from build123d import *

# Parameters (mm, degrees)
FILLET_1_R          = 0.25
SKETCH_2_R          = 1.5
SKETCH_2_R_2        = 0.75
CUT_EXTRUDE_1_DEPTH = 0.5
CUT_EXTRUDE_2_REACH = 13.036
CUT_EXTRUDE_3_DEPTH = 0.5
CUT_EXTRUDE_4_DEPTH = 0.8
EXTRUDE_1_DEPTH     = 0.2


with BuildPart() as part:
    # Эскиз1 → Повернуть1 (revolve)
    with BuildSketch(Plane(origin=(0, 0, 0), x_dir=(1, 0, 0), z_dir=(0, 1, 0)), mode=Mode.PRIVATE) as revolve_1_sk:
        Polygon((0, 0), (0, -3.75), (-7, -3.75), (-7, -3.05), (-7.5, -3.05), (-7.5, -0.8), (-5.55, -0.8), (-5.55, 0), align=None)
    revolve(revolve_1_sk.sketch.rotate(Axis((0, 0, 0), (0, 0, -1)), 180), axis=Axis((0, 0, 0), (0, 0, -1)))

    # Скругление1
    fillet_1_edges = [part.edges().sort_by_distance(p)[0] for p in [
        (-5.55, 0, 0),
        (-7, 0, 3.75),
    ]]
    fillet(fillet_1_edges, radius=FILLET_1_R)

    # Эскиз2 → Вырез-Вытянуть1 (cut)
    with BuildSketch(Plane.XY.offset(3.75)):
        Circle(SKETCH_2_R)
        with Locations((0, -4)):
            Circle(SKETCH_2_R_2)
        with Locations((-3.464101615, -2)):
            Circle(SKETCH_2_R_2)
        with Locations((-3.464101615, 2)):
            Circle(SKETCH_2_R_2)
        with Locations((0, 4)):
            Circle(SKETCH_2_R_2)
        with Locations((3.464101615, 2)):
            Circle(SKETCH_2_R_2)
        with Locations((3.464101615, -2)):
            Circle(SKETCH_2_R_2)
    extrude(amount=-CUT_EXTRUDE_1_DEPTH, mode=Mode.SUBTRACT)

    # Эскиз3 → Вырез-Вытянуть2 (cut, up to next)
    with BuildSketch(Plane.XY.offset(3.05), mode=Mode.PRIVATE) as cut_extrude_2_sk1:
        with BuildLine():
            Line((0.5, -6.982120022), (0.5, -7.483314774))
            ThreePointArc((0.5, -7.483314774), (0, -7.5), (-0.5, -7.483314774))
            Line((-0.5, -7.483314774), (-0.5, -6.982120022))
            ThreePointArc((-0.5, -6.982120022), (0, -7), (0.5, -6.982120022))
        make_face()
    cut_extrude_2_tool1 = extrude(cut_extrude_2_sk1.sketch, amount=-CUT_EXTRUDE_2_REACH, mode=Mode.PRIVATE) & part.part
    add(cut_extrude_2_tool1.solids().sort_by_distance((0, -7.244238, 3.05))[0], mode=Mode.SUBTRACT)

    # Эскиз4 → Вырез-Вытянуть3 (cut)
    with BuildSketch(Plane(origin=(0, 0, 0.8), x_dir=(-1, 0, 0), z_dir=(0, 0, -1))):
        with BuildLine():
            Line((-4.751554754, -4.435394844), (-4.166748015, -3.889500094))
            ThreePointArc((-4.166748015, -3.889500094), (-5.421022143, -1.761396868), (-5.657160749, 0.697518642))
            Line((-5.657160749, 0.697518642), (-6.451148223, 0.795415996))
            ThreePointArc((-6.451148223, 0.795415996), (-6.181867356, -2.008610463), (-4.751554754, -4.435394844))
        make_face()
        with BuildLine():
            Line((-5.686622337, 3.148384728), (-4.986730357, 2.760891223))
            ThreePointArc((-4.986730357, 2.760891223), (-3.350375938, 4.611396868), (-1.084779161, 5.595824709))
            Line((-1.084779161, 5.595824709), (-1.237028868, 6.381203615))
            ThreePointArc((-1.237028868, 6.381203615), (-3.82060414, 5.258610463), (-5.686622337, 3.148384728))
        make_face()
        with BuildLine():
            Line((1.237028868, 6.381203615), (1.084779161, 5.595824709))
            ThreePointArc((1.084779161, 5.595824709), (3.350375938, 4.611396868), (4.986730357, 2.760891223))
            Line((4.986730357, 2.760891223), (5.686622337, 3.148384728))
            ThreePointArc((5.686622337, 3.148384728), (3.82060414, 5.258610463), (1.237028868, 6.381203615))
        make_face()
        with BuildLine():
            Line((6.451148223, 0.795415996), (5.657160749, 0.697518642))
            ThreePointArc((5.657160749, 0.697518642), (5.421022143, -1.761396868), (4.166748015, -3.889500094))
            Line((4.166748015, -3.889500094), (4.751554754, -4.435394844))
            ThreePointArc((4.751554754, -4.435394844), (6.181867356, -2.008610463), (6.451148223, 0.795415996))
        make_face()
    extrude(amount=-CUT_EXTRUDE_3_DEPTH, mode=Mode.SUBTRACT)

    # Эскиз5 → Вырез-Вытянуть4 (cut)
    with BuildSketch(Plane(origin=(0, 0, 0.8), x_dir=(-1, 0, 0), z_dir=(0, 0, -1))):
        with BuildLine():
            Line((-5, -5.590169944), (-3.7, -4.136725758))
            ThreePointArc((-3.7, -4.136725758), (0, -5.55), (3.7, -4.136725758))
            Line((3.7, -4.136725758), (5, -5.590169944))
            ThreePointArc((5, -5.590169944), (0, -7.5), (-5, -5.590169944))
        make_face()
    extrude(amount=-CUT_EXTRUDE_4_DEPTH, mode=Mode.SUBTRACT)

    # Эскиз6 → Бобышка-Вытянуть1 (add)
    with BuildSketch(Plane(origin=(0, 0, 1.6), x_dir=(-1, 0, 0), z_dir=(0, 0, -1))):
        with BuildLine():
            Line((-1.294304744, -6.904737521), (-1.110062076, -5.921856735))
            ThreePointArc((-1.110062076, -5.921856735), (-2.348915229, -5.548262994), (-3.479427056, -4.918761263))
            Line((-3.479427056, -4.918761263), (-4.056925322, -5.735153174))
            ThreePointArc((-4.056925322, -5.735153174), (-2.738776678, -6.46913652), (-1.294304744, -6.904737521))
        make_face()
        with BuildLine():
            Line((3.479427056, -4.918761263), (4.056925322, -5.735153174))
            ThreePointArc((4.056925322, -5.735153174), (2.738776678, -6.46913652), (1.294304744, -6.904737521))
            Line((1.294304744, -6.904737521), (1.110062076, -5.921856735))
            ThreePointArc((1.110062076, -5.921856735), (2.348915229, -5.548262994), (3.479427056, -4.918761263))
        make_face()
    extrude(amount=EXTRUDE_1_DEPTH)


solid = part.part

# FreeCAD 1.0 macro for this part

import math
import FreeCAD as App
import Part
import Sketcher
Q = App.Units.Quantity


def edges_at(feature, points):
    """Names of the edges that pass closest to the given points."""
    edges = feature.Shape.Edges
    near = lambda p: min(range(len(edges)), key=lambda i: edges[i].distToShape(Part.Vertex(*p))[0])
    return sorted({f"Edge{near(p) + 1}" for p in points})


def add_polygon(sketch, points):
    """Adds a closed chain of lines whose ends are joined by coincident constraints."""
    first, n = sketch.GeometryCount, len(points)
    for a, b in zip(points, points[1:] + points[:1]):
        sketch.addGeometry(Part.LineSegment(App.Vector(*a, 0), App.Vector(*b, 0)), False)
    for i in range(n):
        sketch.addConstraint(Sketcher.Constraint("Coincident", first + i, 2, first + (i + 1) % n, 1))

doc = App.newDocument("Part")
params = doc.addObject("Spreadsheet::Sheet", "Params")
for row, (alias, value) in enumerate([
    ("sketch1_width", "7 mm"),
    ("sketch1_width2", "0.5 mm"),
    ("sketch1_height", "0.8 mm"),
    ("sketch1_height2", "0.7 mm"),
    ("sketch1_width3", "5.55 mm"),
    ("revolution_angle", "360 deg"),
    ("fillet_radius", "0.25 mm"),
    ("sketch2_diameter", "3 mm"),
    ("sketch2_diameter2", "1.5 mm"),
    ("pocket1_length", "0.5 mm"),
    ("sketch3_radius", "7 mm"),
    ("sketch3_radius2", "7.5 mm"),
    ("sketch4_radius", "5.7 mm"),
    ("sketch4_radius2", "6.5 mm"),
    ("pocket3_length", "0.5 mm"),
    ("sketch5_radius", "7.5 mm"),
    ("sketch5_radius2", "5.55 mm"),
    ("pocket4_length", "0.8 mm"),
    ("sketch6_length", "1 mm"),
    ("pad1_length", "0.2 mm"),
], start=1):
    params.set(f"A{row}", alias)
    params.set(f"B{row}", "=" + value)
    params.setAlias(f"B{row}", alias)

body = doc.addObject("PartDesign::Body", "Body")

sketch1 = doc.addObject("Sketcher::SketchObject", "Sketch")
body.addObject(sketch1)
sketch1.AttachmentSupport = (doc.XZ_Plane, [""])
sketch1.MapMode = "FlatFace"
add_polygon(sketch1, [(0, 3.8), (0, 0), (-5.5, 0), (-5.5, 0.8), (-7.5, 0.8), (-7.5, 3), (-7, 3), (-7, 3.8)])
sketch1.addConstraint(Sketcher.Constraint("Vertical", 0))
sketch1.addConstraint(Sketcher.Constraint("Horizontal", 1))
sketch1.addConstraint(Sketcher.Constraint("Vertical", 2))
sketch1.addConstraint(Sketcher.Constraint("Horizontal", 3))
sketch1.addConstraint(Sketcher.Constraint("Vertical", 4))
sketch1.addConstraint(Sketcher.Constraint("Horizontal", 5))
sketch1.addConstraint(Sketcher.Constraint("Vertical", 6))
sketch1.addConstraint(Sketcher.Constraint("Horizontal", 7))
sketch1.addConstraint(Sketcher.Constraint("Coincident", 0, 2, -1, 1))
sketch1.addConstraint(Sketcher.Constraint("DistanceX", 7, 1, 7, 2, Q("7 mm")))
sketch1.addConstraint(Sketcher.Constraint("DistanceX", 5, 1, 5, 2, Q("0.5 mm")))
sketch1.addConstraint(Sketcher.Constraint("DistanceY", 2, 1, 2, 2, Q("0.8 mm")))
sketch1.addConstraint(Sketcher.Constraint("DistanceY", 6, 1, 6, 2, Q("0.7 mm")))
sketch1.addConstraint(Sketcher.Constraint("DistanceX", 1, 2, 1, 1, Q("5.55 mm")))
sketch1.addConstraint(Sketcher.Constraint("DistanceY", 0, 2, 0, 1, Q("3.75 mm")))
sketch1.setExpression("Constraints[17]", "Params.sketch1_width")
sketch1.setExpression("Constraints[18]", "Params.sketch1_width2")
sketch1.setExpression("Constraints[19]", "Params.sketch1_height")
sketch1.setExpression("Constraints[20]", "Params.sketch1_height2")
sketch1.setExpression("Constraints[21]", "Params.sketch1_width3")
revolution = doc.addObject("PartDesign::Revolution", "Revolution")
body.addObject(revolution)
revolution.Profile = sketch1
revolution.ReferenceAxis = (sketch1, ["V_Axis"])
revolution.setExpression("Angle", "Params.revolution_angle")
doc.recompute()

fillet = doc.addObject("PartDesign::Fillet", "Fillet")
body.addObject(fillet)
fillet.Base = (revolution, edges_at(revolution, [(-5.55, 0, 0), (-7, 0, 3.75)]))
fillet.setExpression("Radius", "Params.fillet_radius")

sketch2 = doc.addObject("Sketcher::SketchObject", "Sketch001")
body.addObject(sketch2)
sketch2.AttachmentSupport = (doc.XY_Plane, [""])
sketch2.MapMode = "FlatFace"
sketch2.AttachmentOffset = App.Placement(App.Vector(0, 0, 3.75), App.Rotation())
sketch2.addGeometry(Part.Circle(App.Vector(0, 0, 0), App.Vector(0, 0, 1), 1.5), False)
sketch2.addGeometry(Part.Circle(App.Vector(0, -4, 0), App.Vector(0, 0, 1), 0.8), False)
sketch2.addGeometry(Part.Circle(App.Vector(-3.5, -2, 0), App.Vector(0, 0, 1), 0.8), False)
sketch2.addGeometry(Part.Circle(App.Vector(-3.5, 2, 0), App.Vector(0, 0, 1), 0.8), False)
sketch2.addGeometry(Part.Circle(App.Vector(0, 4, 0), App.Vector(0, 0, 1), 0.8), False)
sketch2.addGeometry(Part.Circle(App.Vector(3.5, 2, 0), App.Vector(0, 0, 1), 0.8), False)
sketch2.addGeometry(Part.Circle(App.Vector(3.5, -2, 0), App.Vector(0, 0, 1), 0.8), False)
sketch2.addConstraint(Sketcher.Constraint("Coincident", 0, 3, -1, 1))
sketch2.addConstraint(Sketcher.Constraint("Equal", 1, 2))
sketch2.addConstraint(Sketcher.Constraint("Equal", 2, 3))
sketch2.addConstraint(Sketcher.Constraint("Equal", 3, 4))
sketch2.addConstraint(Sketcher.Constraint("Equal", 4, 5))
sketch2.addConstraint(Sketcher.Constraint("Equal", 5, 6))
sketch2.addConstraint(Sketcher.Constraint("Symmetric", 1, 3, 4, 3, -1, 1))
sketch2.addConstraint(Sketcher.Constraint("Symmetric", 2, 3, 5, 3, -1, 1))
sketch2.addConstraint(Sketcher.Constraint("Symmetric", 3, 3, 6, 3, -1, 1))
sketch2.addConstraint(Sketcher.Constraint("Symmetric", 3, 3, 5, 3, -2))
sketch2.addConstraint(Sketcher.Constraint("PointOnObject", 1, 3, -2))
sketch2.addConstraint(Sketcher.Constraint("Diameter", 0, Q("3 mm")))
sketch2.addConstraint(Sketcher.Constraint("Diameter", 1, Q("1.5 mm")))
sketch2.addConstraint(Sketcher.Constraint("DistanceY", 1, 3, -1, 1, Q("4 mm")))
sketch2.addConstraint(Sketcher.Constraint("DistanceY", 2, 3, -1, 1, Q("2 mm")))
sketch2.addConstraint(Sketcher.Constraint("DistanceX", 2, 3, -1, 1, Q("3.464102 mm")))
sketch2.setExpression("Constraints[11]", "Params.sketch2_diameter")
sketch2.setExpression("Constraints[12]", "Params.sketch2_diameter2")
pocket1 = doc.addObject("PartDesign::Pocket", "Pocket")
body.addObject(pocket1)
pocket1.Profile = sketch2
pocket1.setExpression("Length", "Params.pocket1_length")

sketch3 = doc.addObject("Sketcher::SketchObject", "Sketch002")
body.addObject(sketch3)
sketch3.AttachmentSupport = (doc.XY_Plane, [""])
sketch3.MapMode = "FlatFace"
sketch3.AttachmentOffset = App.Placement(App.Vector(0, 0, 3.05), App.Rotation())
sketch3.addGeometry(Part.LineSegment(App.Vector(0.5, -7.5, 0), App.Vector(0.5, -7, 0)), False)
sketch3.addGeometry(Part.ArcOfCircle(Part.Circle(App.Vector(0, 0, 0), App.Vector(0, 0, 1), 7), math.radians(-94.1), math.radians(-85.9)), False)
sketch3.addGeometry(Part.LineSegment(App.Vector(-0.5, -7, 0), App.Vector(-0.5, -7.5, 0)), False)
sketch3.addGeometry(Part.ArcOfCircle(Part.Circle(App.Vector(0, 0, 0), App.Vector(0, 0, 1), 7.5), math.radians(-93.82), math.radians(-86.18)), False)
sketch3.addConstraint(Sketcher.Constraint("Coincident", 0, 2, 1, 2))
sketch3.addConstraint(Sketcher.Constraint("Coincident", 1, 1, 2, 1))
sketch3.addConstraint(Sketcher.Constraint("Coincident", 2, 2, 3, 1))
sketch3.addConstraint(Sketcher.Constraint("Coincident", 3, 2, 0, 1))
sketch3.addConstraint(Sketcher.Constraint("Vertical", 0))
sketch3.addConstraint(Sketcher.Constraint("Vertical", 2))
sketch3.addConstraint(Sketcher.Constraint("Coincident", 1, 3, -1, 1))
sketch3.addConstraint(Sketcher.Constraint("Coincident", 3, 3, -1, 1))
sketch3.addConstraint(Sketcher.Constraint("Horizontal", 0, 2, 1, 1))
sketch3.addConstraint(Sketcher.Constraint("Radius", 1, Q("7 mm")))
sketch3.addConstraint(Sketcher.Constraint("Radius", 3, Q("7.5 mm")))
sketch3.addConstraint(Sketcher.Constraint("DistanceX", 1, 1, 0, 2, Q("1 mm")))
sketch3.setExpression("Constraints[9]", "Params.sketch3_radius")
sketch3.setExpression("Constraints[10]", "Params.sketch3_radius2")
pocket2 = doc.addObject("PartDesign::Pocket", "Pocket001")
body.addObject(pocket2)
pocket2.Profile = sketch3
pocket2.Type = "UpToFirst"

sketch4 = doc.addObject("Sketcher::SketchObject", "Sketch003")
body.addObject(sketch4)
sketch4.AttachmentSupport = (doc.XY_Plane, [""])
sketch4.MapMode = "FlatFace"
sketch4.AttachmentOffset = App.Placement(App.Vector(0, 0, 0.8), App.Rotation())
sketch4.addGeometry(Part.LineSegment(App.Vector(4.8, -4.4, 0), App.Vector(4.2, -3.9, 0)), False)
sketch4.addGeometry(Part.ArcOfCircle(Part.Circle(App.Vector(0, 0, 0), App.Vector(0, 0, 1), 5.7), math.radians(-43), math.radians(7)), False)
sketch4.addGeometry(Part.LineSegment(App.Vector(5.7, 0.7, 0), App.Vector(6.5, 0.8, 0)), False)
sketch4.addGeometry(Part.ArcOfCircle(Part.Circle(App.Vector(0, 0, 0), App.Vector(0, 0, 1), 6.5), math.radians(-43), math.radians(7)), False)
sketch4.addGeometry(Part.LineSegment(App.Vector(5.7, 3.1, 0), App.Vector(5, 2.8, 0)), False)
sketch4.addGeometry(Part.ArcOfCircle(Part.Circle(App.Vector(0, 0, 0), App.Vector(0, 0, 1), 5.7), math.radians(29), math.radians(79)), False)
sketch4.addGeometry(Part.LineSegment(App.Vector(1.1, 5.6, 0), App.Vector(1.2, 6.4, 0)), False)
sketch4.addGeometry(Part.ArcOfCircle(Part.Circle(App.Vector(0, 0, 0), App.Vector(0, 0, 1), 6.5), math.radians(29), math.radians(79)), False)
sketch4.addGeometry(Part.LineSegment(App.Vector(-1.2, 6.4, 0), App.Vector(-1.1, 5.6, 0)), False)
sketch4.addGeometry(Part.ArcOfCircle(Part.Circle(App.Vector(0, 0, 0), App.Vector(0, 0, 1), 5.7), math.radians(101), math.radians(151)), False)
sketch4.addGeometry(Part.LineSegment(App.Vector(-5, 2.8, 0), App.Vector(-5.7, 3.1, 0)), False)
sketch4.addGeometry(Part.ArcOfCircle(Part.Circle(App.Vector(0, 0, 0), App.Vector(0, 0, 1), 6.5), math.radians(101), math.radians(151)), False)
sketch4.addGeometry(Part.LineSegment(App.Vector(-6.5, 0.8, 0), App.Vector(-5.7, 0.7, 0)), False)
sketch4.addGeometry(Part.ArcOfCircle(Part.Circle(App.Vector(0, 0, 0), App.Vector(0, 0, 1), 5.7), math.radians(173), math.radians(223)), False)
sketch4.addGeometry(Part.LineSegment(App.Vector(-4.2, -3.9, 0), App.Vector(-4.8, -4.4, 0)), False)
sketch4.addGeometry(Part.ArcOfCircle(Part.Circle(App.Vector(0, 0, 0), App.Vector(0, 0, 1), 6.5), math.radians(173), math.radians(223)), False)
sketch4.addConstraint(Sketcher.Constraint("Coincident", 0, 2, 1, 1))
sketch4.addConstraint(Sketcher.Constraint("Coincident", 1, 2, 2, 1))
sketch4.addConstraint(Sketcher.Constraint("Coincident", 2, 2, 3, 2))
sketch4.addConstraint(Sketcher.Constraint("Coincident", 3, 1, 0, 1))
sketch4.addConstraint(Sketcher.Constraint("Coincident", 4, 2, 5, 1))
sketch4.addConstraint(Sketcher.Constraint("Coincident", 5, 2, 6, 1))
sketch4.addConstraint(Sketcher.Constraint("Coincident", 6, 2, 7, 2))
sketch4.addConstraint(Sketcher.Constraint("Coincident", 7, 1, 4, 1))
sketch4.addConstraint(Sketcher.Constraint("Coincident", 8, 2, 9, 1))
sketch4.addConstraint(Sketcher.Constraint("Coincident", 9, 2, 10, 1))
sketch4.addConstraint(Sketcher.Constraint("Coincident", 10, 2, 11, 2))
sketch4.addConstraint(Sketcher.Constraint("Coincident", 11, 1, 8, 1))
sketch4.addConstraint(Sketcher.Constraint("Coincident", 12, 2, 13, 1))
sketch4.addConstraint(Sketcher.Constraint("Coincident", 13, 2, 14, 1))
sketch4.addConstraint(Sketcher.Constraint("Coincident", 14, 2, 15, 2))
sketch4.addConstraint(Sketcher.Constraint("Coincident", 15, 1, 12, 1))
sketch4.addConstraint(Sketcher.Constraint("Coincident", 1, 3, -1, 1))
sketch4.addConstraint(Sketcher.Constraint("Coincident", 3, 3, -1, 1))
sketch4.addConstraint(Sketcher.Constraint("Coincident", 5, 3, -1, 1))
sketch4.addConstraint(Sketcher.Constraint("Coincident", 7, 3, -1, 1))
sketch4.addConstraint(Sketcher.Constraint("Coincident", 9, 3, -1, 1))
sketch4.addConstraint(Sketcher.Constraint("Coincident", 11, 3, -1, 1))
sketch4.addConstraint(Sketcher.Constraint("Coincident", 13, 3, -1, 1))
sketch4.addConstraint(Sketcher.Constraint("Coincident", 15, 3, -1, 1))
sketch4.addConstraint(Sketcher.Constraint("Equal", 1, 5))
sketch4.addConstraint(Sketcher.Constraint("Equal", 3, 7))
sketch4.addConstraint(Sketcher.Constraint("Equal", 5, 9))
sketch4.addConstraint(Sketcher.Constraint("Equal", 7, 11))
sketch4.addConstraint(Sketcher.Constraint("Equal", 9, 13))
sketch4.addConstraint(Sketcher.Constraint("Equal", 11, 15))
sketch4.addConstraint(Sketcher.Constraint("Horizontal", 5, 2, 8, 2))
sketch4.addConstraint(Sketcher.Constraint("Horizontal", 4, 2, 9, 2))
sketch4.addConstraint(Sketcher.Constraint("Horizontal", 7, 1, 10, 2))
sketch4.addConstraint(Sketcher.Constraint("Horizontal", 6, 2, 11, 1))
sketch4.addConstraint(Sketcher.Constraint("Horizontal", 1, 2, 12, 2))
sketch4.addConstraint(Sketcher.Constraint("Horizontal", 0, 2, 13, 2))
sketch4.addConstraint(Sketcher.Constraint("Horizontal", 3, 1, 14, 2))
sketch4.addConstraint(Sketcher.Constraint("Horizontal", 2, 2, 15, 1))
sketch4.addConstraint(Sketcher.Constraint("Radius", 1, Q("5.7 mm")))
sketch4.addConstraint(Sketcher.Constraint("Radius", 3, Q("6.5 mm")))
sketch4.addConstraint(Sketcher.Constraint("DistanceY", 0, 2, -1, 1, Q("3.8895 mm")))
sketch4.addConstraint(Sketcher.Constraint("DistanceX", 0, 2, 2, 2, Q("2.2844 mm")))
sketch4.addConstraint(Sketcher.Constraint("DistanceX", 6, 2, 4, 2, Q("3.749701 mm")))
sketch4.addConstraint(Sketcher.Constraint("DistanceX", -1, 1, 1, 2, Q("5.657161 mm")))
sketch4.addConstraint(Sketcher.Constraint("DistanceX", -1, 1, 4, 2, Q("4.98673 mm")))
sketch4.addConstraint(Sketcher.Constraint("DistanceX", -1, 1, 5, 2, Q("1.084779 mm")))
sketch4.addConstraint(Sketcher.Constraint("DistanceY", 3, 1, 2, 2, Q("5.230811 mm")))
sketch4.addConstraint(Sketcher.Constraint("DistanceX", 4, 2, 7, 1, Q("0.699892 mm")))
sketch4.setExpression("Constraints[38]", "Params.sketch4_radius")
sketch4.setExpression("Constraints[39]", "Params.sketch4_radius2")
pocket3 = doc.addObject("PartDesign::Pocket", "Pocket002")
body.addObject(pocket3)
pocket3.Profile = sketch4
pocket3.setExpression("Length", "Params.pocket3_length")
pocket3.Reversed = True

sketch5 = doc.addObject("Sketcher::SketchObject", "Sketch004")
body.addObject(sketch5)
sketch5.AttachmentSupport = (doc.XY_Plane, [""])
sketch5.MapMode = "FlatFace"
sketch5.AttachmentOffset = App.Placement(App.Vector(0, 0, 0.8), App.Rotation())
sketch5.addGeometry(Part.LineSegment(App.Vector(3.7, -4.1, 0), App.Vector(5, -5.6, 0)), False)
sketch5.addGeometry(Part.ArcOfCircle(Part.Circle(App.Vector(0, 0, 0), App.Vector(0, 0, 1), 7.5), math.radians(-132), math.radians(-48)), False)
sketch5.addGeometry(Part.LineSegment(App.Vector(-5, -5.6, 0), App.Vector(-3.7, -4.1, 0)), False)
sketch5.addGeometry(Part.ArcOfCircle(Part.Circle(App.Vector(0, 0, 0), App.Vector(0, 0, 1), 5.5), math.radians(-132), math.radians(-48)), False)
sketch5.addConstraint(Sketcher.Constraint("Coincident", 0, 2, 1, 2))
sketch5.addConstraint(Sketcher.Constraint("Coincident", 1, 1, 2, 1))
sketch5.addConstraint(Sketcher.Constraint("Coincident", 2, 2, 3, 1))
sketch5.addConstraint(Sketcher.Constraint("Coincident", 3, 2, 0, 1))
sketch5.addConstraint(Sketcher.Constraint("Coincident", 1, 3, -1, 1))
sketch5.addConstraint(Sketcher.Constraint("Coincident", 3, 3, -1, 1))
sketch5.addConstraint(Sketcher.Constraint("Horizontal", 0, 2, 1, 1))
sketch5.addConstraint(Sketcher.Constraint("Horizontal", 2, 2, 3, 2))
sketch5.addConstraint(Sketcher.Constraint("Radius", 1, Q("7.5 mm")))
sketch5.addConstraint(Sketcher.Constraint("Radius", 3, Q("5.55 mm")))
sketch5.addConstraint(Sketcher.Constraint("DistanceX", -1, 1, 0, 2, Q("5 mm")))
sketch5.addConstraint(Sketcher.Constraint("DistanceX", 2, 2, -1, 1, Q("3.7 mm")))
sketch5.setExpression("Constraints[8]", "Params.sketch5_radius")
sketch5.setExpression("Constraints[9]", "Params.sketch5_radius2")
pocket4 = doc.addObject("PartDesign::Pocket", "Pocket003")
body.addObject(pocket4)
pocket4.Profile = sketch5
pocket4.setExpression("Length", "Params.pocket4_length")
pocket4.Reversed = True

sketch6 = doc.addObject("Sketcher::SketchObject", "Sketch005")
body.addObject(sketch6)
sketch6.AttachmentSupport = (doc.XY_Plane, [""])
sketch6.MapMode = "FlatFace"
sketch6.AttachmentOffset = App.Placement(App.Vector(0, 0, 1.6), App.Rotation())
sketch6.addGeometry(Part.LineSegment(App.Vector(1.3, -6.9, 0), App.Vector(1.1, -5.9, 0)), False)
sketch6.addGeometry(Part.ArcOfCircle(Part.Circle(App.Vector(0, 0, 0), App.Vector(0, 0, 1), 6), math.radians(-79), math.radians(-55)), False)
sketch6.addGeometry(Part.LineSegment(App.Vector(3.5, -4.9, 0), App.Vector(4.1, -5.7, 0)), False)
sketch6.addGeometry(Part.ArcOfCircle(Part.Circle(App.Vector(0, 0, 0), App.Vector(0, 0, 1), 7), math.radians(-79), math.radians(-55)), False)
sketch6.addGeometry(Part.LineSegment(App.Vector(-4.1, -5.7, 0), App.Vector(-3.5, -4.9, 0)), False)
sketch6.addGeometry(Part.ArcOfCircle(Part.Circle(App.Vector(0, 0, 0), App.Vector(0, 0, 1), 6), math.radians(-125), math.radians(-101)), False)
sketch6.addGeometry(Part.LineSegment(App.Vector(-1.1, -5.9, 0), App.Vector(-1.3, -6.9, 0)), False)
sketch6.addGeometry(Part.ArcOfCircle(Part.Circle(App.Vector(0, 0, 0), App.Vector(0, 0, 1), 7), math.radians(-125), math.radians(-101)), False)
sketch6.addConstraint(Sketcher.Constraint("Coincident", 0, 2, 1, 1))
sketch6.addConstraint(Sketcher.Constraint("Coincident", 1, 2, 2, 1))
sketch6.addConstraint(Sketcher.Constraint("Coincident", 2, 2, 3, 2))
sketch6.addConstraint(Sketcher.Constraint("Coincident", 3, 1, 0, 1))
sketch6.addConstraint(Sketcher.Constraint("Coincident", 4, 2, 5, 1))
sketch6.addConstraint(Sketcher.Constraint("Coincident", 5, 2, 6, 1))
sketch6.addConstraint(Sketcher.Constraint("Coincident", 6, 2, 7, 2))
sketch6.addConstraint(Sketcher.Constraint("Coincident", 7, 1, 4, 1))
sketch6.addConstraint(Sketcher.Constraint("Coincident", 1, 3, -1, 1))
sketch6.addConstraint(Sketcher.Constraint("Coincident", 3, 3, -1, 1))
sketch6.addConstraint(Sketcher.Constraint("Coincident", 5, 3, -1, 1))
sketch6.addConstraint(Sketcher.Constraint("Coincident", 7, 3, -1, 1))
sketch6.addConstraint(Sketcher.Constraint("Equal", 1, 5))
sketch6.addConstraint(Sketcher.Constraint("Equal", 3, 7))
sketch6.addConstraint(Sketcher.Constraint("Horizontal", 1, 2, 4, 2))
sketch6.addConstraint(Sketcher.Constraint("Horizontal", 0, 2, 5, 2))
sketch6.addConstraint(Sketcher.Constraint("Horizontal", 3, 1, 6, 2))
sketch6.addConstraint(Sketcher.Constraint("Horizontal", 2, 2, 7, 1))
sketch6.addConstraint(Sketcher.Constraint("Distance", 0, Q("1 mm")))
sketch6.addConstraint(Sketcher.Constraint("Radius", 1, Q("6.025 mm")))
sketch6.addConstraint(Sketcher.Constraint("DistanceX", 1, 2, 2, 2, Q("0.577498 mm")))
sketch6.addConstraint(Sketcher.Constraint("DistanceY", 1, 2, -1, 1, Q("4.918761 mm")))
sketch6.addConstraint(Sketcher.Constraint("DistanceY", 3, 1, 0, 2, Q("0.982881 mm")))
sketch6.addConstraint(Sketcher.Constraint("DistanceX", 3, 1, 2, 2, Q("2.762621 mm")))
sketch6.setExpression("Constraints[18]", "Params.sketch6_length")
pad1 = doc.addObject("PartDesign::Pad", "Pad")
body.addObject(pad1)
pad1.Profile = sketch6
pad1.setExpression("Length", "Params.pad1_length")
pad1.Reversed = True

doc.recompute()
